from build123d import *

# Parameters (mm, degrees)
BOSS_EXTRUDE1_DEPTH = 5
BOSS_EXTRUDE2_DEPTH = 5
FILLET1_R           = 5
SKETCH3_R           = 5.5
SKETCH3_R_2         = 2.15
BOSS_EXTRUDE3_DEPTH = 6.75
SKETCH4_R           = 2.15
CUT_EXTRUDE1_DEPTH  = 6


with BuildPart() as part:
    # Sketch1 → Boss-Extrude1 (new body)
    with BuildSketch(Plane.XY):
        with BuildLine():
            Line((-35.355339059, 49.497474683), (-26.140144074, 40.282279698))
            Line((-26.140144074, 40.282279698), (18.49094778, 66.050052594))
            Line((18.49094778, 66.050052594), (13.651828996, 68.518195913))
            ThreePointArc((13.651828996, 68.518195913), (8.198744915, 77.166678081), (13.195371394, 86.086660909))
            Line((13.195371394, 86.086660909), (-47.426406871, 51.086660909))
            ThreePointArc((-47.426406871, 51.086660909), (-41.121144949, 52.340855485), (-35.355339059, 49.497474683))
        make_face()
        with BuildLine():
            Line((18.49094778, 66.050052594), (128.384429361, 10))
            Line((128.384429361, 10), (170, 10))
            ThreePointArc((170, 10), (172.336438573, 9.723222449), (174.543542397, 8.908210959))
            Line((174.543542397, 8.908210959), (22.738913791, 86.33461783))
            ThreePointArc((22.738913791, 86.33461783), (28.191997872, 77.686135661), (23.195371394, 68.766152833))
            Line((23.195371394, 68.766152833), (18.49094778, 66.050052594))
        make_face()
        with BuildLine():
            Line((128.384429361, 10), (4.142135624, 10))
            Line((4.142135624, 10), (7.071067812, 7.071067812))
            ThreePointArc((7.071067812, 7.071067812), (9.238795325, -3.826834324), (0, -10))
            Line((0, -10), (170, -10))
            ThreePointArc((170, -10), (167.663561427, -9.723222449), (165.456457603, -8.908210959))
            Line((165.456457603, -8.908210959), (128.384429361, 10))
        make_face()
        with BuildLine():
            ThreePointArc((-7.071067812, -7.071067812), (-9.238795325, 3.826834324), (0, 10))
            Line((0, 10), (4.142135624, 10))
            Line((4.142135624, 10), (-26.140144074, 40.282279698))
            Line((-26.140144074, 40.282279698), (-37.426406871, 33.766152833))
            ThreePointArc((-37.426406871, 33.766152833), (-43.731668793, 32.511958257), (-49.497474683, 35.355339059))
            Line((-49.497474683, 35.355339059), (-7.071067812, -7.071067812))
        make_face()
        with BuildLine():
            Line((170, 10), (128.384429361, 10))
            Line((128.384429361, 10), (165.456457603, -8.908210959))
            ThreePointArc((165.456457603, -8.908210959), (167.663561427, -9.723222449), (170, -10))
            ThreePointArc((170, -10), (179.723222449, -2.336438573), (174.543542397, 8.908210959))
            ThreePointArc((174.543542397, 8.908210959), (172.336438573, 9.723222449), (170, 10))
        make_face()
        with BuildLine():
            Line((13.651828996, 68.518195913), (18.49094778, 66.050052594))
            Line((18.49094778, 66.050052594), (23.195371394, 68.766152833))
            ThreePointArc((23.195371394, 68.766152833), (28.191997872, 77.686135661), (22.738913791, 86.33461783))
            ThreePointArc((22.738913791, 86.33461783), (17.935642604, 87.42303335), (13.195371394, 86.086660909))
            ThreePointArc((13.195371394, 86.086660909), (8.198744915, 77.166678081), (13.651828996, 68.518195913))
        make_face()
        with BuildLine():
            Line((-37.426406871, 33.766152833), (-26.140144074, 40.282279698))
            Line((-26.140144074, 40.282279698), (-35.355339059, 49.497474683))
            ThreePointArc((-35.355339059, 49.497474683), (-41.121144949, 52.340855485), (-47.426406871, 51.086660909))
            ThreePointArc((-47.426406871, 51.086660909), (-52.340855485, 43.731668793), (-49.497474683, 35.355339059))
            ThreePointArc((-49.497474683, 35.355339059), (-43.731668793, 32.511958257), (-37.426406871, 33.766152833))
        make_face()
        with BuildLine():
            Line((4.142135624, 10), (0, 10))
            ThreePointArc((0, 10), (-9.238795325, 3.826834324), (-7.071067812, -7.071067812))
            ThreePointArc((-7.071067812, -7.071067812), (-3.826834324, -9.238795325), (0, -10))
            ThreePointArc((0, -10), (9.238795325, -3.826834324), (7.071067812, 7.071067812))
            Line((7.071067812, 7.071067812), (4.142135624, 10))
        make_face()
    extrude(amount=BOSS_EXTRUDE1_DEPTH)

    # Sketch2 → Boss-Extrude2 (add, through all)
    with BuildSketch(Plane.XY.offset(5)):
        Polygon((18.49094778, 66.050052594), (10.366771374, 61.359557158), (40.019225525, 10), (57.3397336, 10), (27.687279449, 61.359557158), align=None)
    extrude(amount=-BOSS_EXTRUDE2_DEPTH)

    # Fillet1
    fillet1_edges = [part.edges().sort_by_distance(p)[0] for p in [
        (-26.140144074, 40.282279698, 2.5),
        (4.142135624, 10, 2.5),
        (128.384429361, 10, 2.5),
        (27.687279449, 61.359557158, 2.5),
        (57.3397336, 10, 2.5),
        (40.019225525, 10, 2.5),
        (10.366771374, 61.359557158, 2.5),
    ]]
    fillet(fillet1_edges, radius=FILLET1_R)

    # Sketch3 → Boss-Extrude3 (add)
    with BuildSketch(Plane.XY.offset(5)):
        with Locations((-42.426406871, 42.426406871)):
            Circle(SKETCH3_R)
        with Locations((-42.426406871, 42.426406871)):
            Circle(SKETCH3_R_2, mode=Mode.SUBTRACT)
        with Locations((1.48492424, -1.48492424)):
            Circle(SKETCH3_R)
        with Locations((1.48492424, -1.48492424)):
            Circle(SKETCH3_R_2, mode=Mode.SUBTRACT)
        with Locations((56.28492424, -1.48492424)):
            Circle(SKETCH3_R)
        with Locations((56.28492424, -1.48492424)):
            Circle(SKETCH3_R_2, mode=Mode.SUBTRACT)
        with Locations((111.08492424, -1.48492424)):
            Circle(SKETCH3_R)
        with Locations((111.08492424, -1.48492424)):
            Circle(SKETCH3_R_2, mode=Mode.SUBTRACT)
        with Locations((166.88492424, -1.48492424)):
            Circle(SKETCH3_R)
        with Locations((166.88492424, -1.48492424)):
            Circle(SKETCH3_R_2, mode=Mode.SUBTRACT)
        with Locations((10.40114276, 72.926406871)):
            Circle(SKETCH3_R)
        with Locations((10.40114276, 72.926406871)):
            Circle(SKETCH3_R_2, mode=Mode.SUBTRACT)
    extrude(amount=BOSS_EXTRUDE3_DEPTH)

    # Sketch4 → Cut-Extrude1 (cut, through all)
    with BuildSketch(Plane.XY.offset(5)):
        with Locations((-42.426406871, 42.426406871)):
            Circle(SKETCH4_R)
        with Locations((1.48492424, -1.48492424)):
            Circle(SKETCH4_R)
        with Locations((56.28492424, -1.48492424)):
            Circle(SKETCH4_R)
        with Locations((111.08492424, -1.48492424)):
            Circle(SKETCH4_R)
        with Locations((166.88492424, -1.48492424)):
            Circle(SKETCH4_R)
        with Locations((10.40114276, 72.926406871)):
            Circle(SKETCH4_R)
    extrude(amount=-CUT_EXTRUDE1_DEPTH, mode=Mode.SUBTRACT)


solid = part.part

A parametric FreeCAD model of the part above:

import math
import FreeCAD as App
import Part
import Sketcher
from FreeCAD import Vector
Q = App.Units.Quantity


def edges_at(feature, points):
    """Names of the edges that pass closest to the given points."""
    edges = feature.Shape.Edges
    near = lambda p: min(range(len(edges)), key=lambda i: edges[i].distToShape(Part.Vertex(*p))[0])
    return sorted({f"Edge{near(p) + 1}" for p in points})


def add_polygon(sketch, points):
    """Adds a closed chain of lines whose ends are joined by coincident constraints."""
    first, n = sketch.GeometryCount, len(points)
    for a, b in zip(points, points[1:] + points[:1]):
        sketch.addGeometry(Part.LineSegment(App.Vector(*a, 0), App.Vector(*b, 0)), False)
    for i in range(n):
        sketch.addConstraint(Sketcher.Constraint("Coincident", first + i, 2, first + (i + 1) % n, 1))

doc = App.newDocument("Part")
params = doc.addObject("Spreadsheet::Sheet", "Params")
for row, (alias, value) in enumerate([
    ("sketch1_radius", "10 mm"),
    ("sketch1_width", "170 mm"),
    ("sketch1_length", "60 mm"),
    ("sketch1_length2", "70 mm"),
    ("pad1_length", "5 mm"),
    ("pad2_length", "5 mm"),
    ("fillet_radius", "5 mm"),
    ("sketch3_diameter", "11 mm"),
    ("sketch3_diameter2", "4.3 mm"),
    ("pad3_length", "6.75 mm"),
    ("sketch4_diameter", "4.3 mm"),
], start=1):
    params.set(f"A{row}", alias)
    params.set(f"B{row}", "=" + value)
    params.setAlias(f"B{row}", alias)

body = doc.addObject("PartDesign::Body", "Body")

# Sketch on XY plane
sketch1 = body.newObject("Sketcher::SketchObject", "Sketch")
sketch1.AttachmentSupport = (doc.getObject("XY_Plane"), [""])
sketch1.MapMode = "FlatFace"
sketch1.addGeometry(Part.LineSegment(Vector(-49, 35, 0), Vector(-7, -7, 0)), False)  # 0
sketch1.addGeometry(Part.ArcOfCircle(Part.Circle(Vector(0, 0, 0), Vector(0, 0, 1), 10), math.radians(-135), math.radians(-90)), False)  # 1
sketch1.addGeometry(Part.LineSegment(Vector(0, -10, 0), Vector(170, -10, 0)), False)  # 2
sketch1.addGeometry(Part.ArcOfCircle(Part.Circle(Vector(170, 0, 0), Vector(0, 0, 1), 10), math.radians(-90), math.radians(63)), False)  # 3
sketch1.addGeometry(Part.LineSegment(Vector(175, 9, 0), Vector(23, 86, 0)), False)  # 4
sketch1.addGeometry(Part.ArcOfCircle(Part.Circle(Vector(18, 77, 0), Vector(0, 0, 1), 10), math.radians(63), math.radians(120)), False)  # 5
sketch1.addGeometry(Part.LineSegment(Vector(13, 86, 0), Vector(-47, 51, 0)), False)  # 6
sketch1.addGeometry(Part.ArcOfCircle(Part.Circle(Vector(-42, 42, 0), Vector(0, 0, 1), 10), math.radians(120), math.radians(225)), False)  # 7
add_polygon(sketch1, [(128, 10), (4, 10), (-26, 40), (18, 66)])  # lines 8-11
sketch1.addConstraint(Sketcher.Constraint("Tangent", 0, 2, 1, 1))
sketch1.addConstraint(Sketcher.Constraint("Tangent", 1, 2, 2, 1))
sketch1.addConstraint(Sketcher.Constraint("Tangent", 2, 2, 3, 1))
sketch1.addConstraint(Sketcher.Constraint("Tangent", 3, 2, 4, 1))
sketch1.addConstraint(Sketcher.Constraint("Tangent", 4, 2, 5, 1))
sketch1.addConstraint(Sketcher.Constraint("Tangent", 5, 2, 6, 1))
sketch1.addConstraint(Sketcher.Constraint("Tangent", 6, 2, 7, 1))
sketch1.addConstraint(Sketcher.Constraint("Tangent", 7, 2, 0, 1))
sketch1.addConstraint(Sketcher.Constraint("Horizontal", 2))
sketch1.addConstraint(Sketcher.Constraint("Horizontal", 8))
sketch1.addConstraint(Sketcher.Constraint("Coincident", 1, 3, -1, 1))
sketch1.addConstraint(Sketcher.Constraint("Equal", 1, 3))
sketch1.addConstraint(Sketcher.Constraint("Equal", 3, 5))
sketch1.addConstraint(Sketcher.Constraint("Equal", 5, 7))
sketch1.addConstraint(Sketcher.Constraint("Parallel", 0, 9))
sketch1.addConstraint(Sketcher.Constraint("Parallel", 6, 10))
sketch1.addConstraint(Sketcher.Constraint("Parallel", 4, 11))
sketch1.addConstraint(Sketcher.Constraint("Radius", 1, Q("10 mm")))
sketch1.addConstraint(Sketcher.Constraint("DistanceX", 2, 1, 2, 2, Q("170 mm")))
sketch1.addConstraint(Sketcher.Constraint("Angle", 0, Q("-45 deg")))
sketch1.addConstraint(Sketcher.Constraint("Angle", 6, Q("-150 deg")))
sketch1.addConstraint(Sketcher.Constraint("Distance", 0, Q("60 mm")))
sketch1.addConstraint(Sketcher.Constraint("Distance", 6, Q("70 mm")))
sketch1.addConstraint(Sketcher.Constraint("DistanceY", -1, 1, 8, 2, Q("10 mm")))
sketch1.addConstraint(Sketcher.Constraint("Distance", 9, Q("42.825611 mm")))
sketch1.addConstraint(Sketcher.Constraint("Distance", 11, Q("123.362011 mm")))
sketch1.addConstraint(Sketcher.Constraint("DistanceX", -1, 1, 11, 2, Q("128.384429 mm")))
sketch1.setExpression("Constraints[21]", "Params.sketch1_radius")
sketch1.setExpression("Constraints[22]", "Params.sketch1_width")
sketch1.setExpression("Constraints[25]", "Params.sketch1_length")
sketch1.setExpression("Constraints[26]", "Params.sketch1_length2")
pad1 = body.newObject("PartDesign::Pad", "Pad")
pad1.Profile = sketch1
pad1.setExpression("Length", "Params.pad1_length")

# Sketch on XY plane
sketch2 = body.newObject("Sketcher::SketchObject", "Sketch001")
sketch2.AttachmentSupport = (doc.getObject("XY_Plane"), [""])
sketch2.MapMode = "FlatFace"
sketch2.AttachmentOffset = App.Placement(Vector(0, 0, 5), App.Rotation())
add_polygon(sketch2, [(18, 66), (10, 61), (40, 10), (57, 10), (28, 61)])  # lines 0-4
sketch2.addConstraint(Sketcher.Constraint("Horizontal", 2))
sketch2.addConstraint(Sketcher.Constraint("Perpendicular", 0, 1))
sketch2.addConstraint(Sketcher.Constraint("Parallel", 1, 3))
sketch2.addConstraint(Sketcher.Constraint("Horizontal", 0, 2, 3, 2))
sketch2.addConstraint(Sketcher.Constraint("Angle", 0, Q("-150 deg")))
sketch2.addConstraint(Sketcher.Constraint("DistanceY", -1, 1, 1, 2, Q("10 mm")))
sketch2.addConstraint(Sketcher.Constraint("DistanceX", 2, 1, 2, 2, Q("17.320508 mm")))
sketch2.addConstraint(Sketcher.Constraint("Distance", 0, Q("9.380991 mm")))
sketch2.addConstraint(Sketcher.Constraint("Distance", 1, Q("59.304908 mm")))
sketch2.addConstraint(Sketcher.Constraint("DistanceX", -1, 1, 0, 2, Q("10.366771 mm")))
pad2 = body.newObject("PartDesign::Pad", "Pad001")
pad2.Profile = sketch2
pad2.setExpression("Length", "Params.pad2_length")
pad2.Reversed = True
doc.recompute()

fillet = body.newObject("PartDesign::Fillet", "Fillet")
fillet.Base = (pad2, edges_at(pad2, [
    (-26.14, 40.282, 2.5),
    (4.142, 10, 2.5),
    (128.384, 10, 2.5),
    (27.687, 61.36, 2.5),
    (57.34, 10, 2.5),
    (40.019, 10, 2.5),
    (10.367, 61.36, 2.5),
]))
fillet.setExpression("Radius", "Params.fillet_radius")

# Sketch on XY plane
sketch3 = body.newObject("Sketcher::SketchObject", "Sketch002")
sketch3.AttachmentSupport = (doc.getObject("XY_Plane"), [""])
sketch3.MapMode = "FlatFace"
sketch3.AttachmentOffset = App.Placement(Vector(0, 0, 5), App.Rotation())
sketch3.addGeometry(Part.Circle(Vector(-42.4, 42.4, 0), Vector(0, 0, 1), 5.5), False)
sketch3.addGeometry(Part.Circle(Vector(-42.4, 42.4, 0), Vector(0, 0, 1), 2.1), False)
sketch3.addGeometry(Part.Circle(Vector(1.5, -1.5, 0), Vector(0, 0, 1), 5.5), False)
sketch3.addGeometry(Part.Circle(Vector(1.5, -1.5, 0), Vector(0, 0, 1), 2.1), False)
sketch3.addGeometry(Part.Circle(Vector(56.3, -1.5, 0), Vector(0, 0, 1), 5.5), False)
sketch3.addGeometry(Part.Circle(Vector(56.3, -1.5, 0), Vector(0, 0, 1), 2.1), False)
sketch3.addGeometry(Part.Circle(Vector(111.1, -1.5, 0), Vector(0, 0, 1), 5.5), False)
sketch3.addGeometry(Part.Circle(Vector(111.1, -1.5, 0), Vector(0, 0, 1), 2.1), False)
sketch3.addGeometry(Part.Circle(Vector(166.9, -1.5, 0), Vector(0, 0, 1), 5.5), False)
sketch3.addGeometry(Part.Circle(Vector(166.9, -1.5, 0), Vector(0, 0, 1), 2.1), False)
sketch3.addGeometry(Part.Circle(Vector(10.4, 72.9, 0), Vector(0, 0, 1), 5.5), False)
sketch3.addGeometry(Part.Circle(Vector(10.4, 72.9, 0), Vector(0, 0, 1), 2.1), False)
sketch3.addConstraint(Sketcher.Constraint("Coincident", 1, 3, 0, 3))
sketch3.addConstraint(Sketcher.Constraint("Coincident", 3, 3, 2, 3))
sketch3.addConstraint(Sketcher.Constraint("Coincident", 5, 3, 4, 3))
sketch3.addConstraint(Sketcher.Constraint("Coincident", 7, 3, 6, 3))
sketch3.addConstraint(Sketcher.Constraint("Coincident", 9, 3, 8, 3))
sketch3.addConstraint(Sketcher.Constraint("Coincident", 11, 3, 10, 3))
sketch3.addConstraint(Sketcher.Constraint("Equal", 0, 2))
sketch3.addConstraint(Sketcher.Constraint("Equal", 1, 3))
sketch3.addConstraint(Sketcher.Constraint("Equal", 2, 4))
sketch3.addConstraint(Sketcher.Constraint("Equal", 3, 5))
sketch3.addConstraint(Sketcher.Constraint("Equal", 4, 6))
sketch3.addConstraint(Sketcher.Constraint("Equal", 5, 7))
sketch3.addConstraint(Sketcher.Constraint("Equal", 6, 8))
sketch3.addConstraint(Sketcher.Constraint("Equal", 7, 9))
sketch3.addConstraint(Sketcher.Constraint("Equal", 8, 10))
sketch3.addConstraint(Sketcher.Constraint("Equal", 9, 11))
sketch3.addConstraint(Sketcher.Constraint("Horizontal", 3, 3, 4, 3))
sketch3.addConstraint(Sketcher.Constraint("Horizontal", 5, 3, 6, 3))
sketch3.addConstraint(Sketcher.Constraint("Horizontal", 7, 3, 8, 3))
sketch3.addConstraint(Sketcher.Constraint("Diameter", 0, Q("11 mm")))
sketch3.addConstraint(Sketcher.Constraint("Diameter", 1, Q("4.3 mm")))
sketch3.addConstraint(Sketcher.Constraint("DistanceX", 2, 3, 4, 3, Q("54.8 mm")))
sketch3.addConstraint(Sketcher.Constraint("DistanceX", 4, 3, 6, 3, Q("54.8 mm")))
sketch3.addConstraint(Sketcher.Constraint("DistanceX", 6, 3, 8, 3, Q("55.8 mm")))
sketch3.addConstraint(Sketcher.Constraint("DistanceY", 0, 3, 10, 3, Q("30.5 mm")))
sketch3.addConstraint(Sketcher.Constraint("DistanceX", 0, 3, 2, 3, Q("43.911331 mm")))
sketch3.addConstraint(Sketcher.Constraint("DistanceY", 2, 3, 0, 3, Q("43.911331 mm")))
sketch3.addConstraint(Sketcher.Constraint("DistanceX", 0, 3, 10, 3, Q("52.82755 mm")))
sketch3.addConstraint(Sketcher.Constraint("DistanceX", 0, 3, -1, 1, Q("42.426407 mm")))
sketch3.addConstraint(Sketcher.Constraint("DistanceY", -1, 1, 0, 3, Q("42.426407 mm")))
sketch3.setExpression("Constraints[19]", "Params.sketch3_diameter")
sketch3.setExpression("Constraints[20]", "Params.sketch3_diameter2")
pad3 = body.newObject("PartDesign::Pad", "Pad002")
pad3.Profile = sketch3
pad3.setExpression("Length", "Params.pad3_length")

# Sketch on XY plane
sketch4 = body.newObject("Sketcher::SketchObject", "Sketch003")
sketch4.AttachmentSupport = (doc.getObject("XY_Plane"), [""])
sketch4.MapMode = "FlatFace"
sketch4.AttachmentOffset = App.Placement(Vector(0, 0, 5), App.Rotation())
sketch4.addGeometry(Part.Circle(Vector(-42.4, 42.4, 0), Vector(0, 0, 1), 2.1), False)
sketch4.addGeometry(Part.Circle(Vector(1.5, -1.5, 0), Vector(0, 0, 1), 2.1), False)
sketch4.addGeometry(Part.Circle(Vector(56.3, -1.5, 0), Vector(0, 0, 1), 2.1), False)
sketch4.addGeometry(Part.Circle(Vector(111.1, -1.5, 0), Vector(0, 0, 1), 2.1), False)
sketch4.addGeometry(Part.Circle(Vector(166.9, -1.5, 0), Vector(0, 0, 1), 2.1), False)
sketch4.addGeometry(Part.Circle(Vector(10.4, 72.9, 0), Vector(0, 0, 1), 2.1), False)
sketch4.addConstraint(Sketcher.Constraint("Equal", 0, 1))
sketch4.addConstraint(Sketcher.Constraint("Equal", 1, 2))
sketch4.addConstraint(Sketcher.Constraint("Equal", 2, 3))
sketch4.addConstraint(Sketcher.Constraint("Equal", 3, 4))
sketch4.addConstraint(Sketcher.Constraint("Equal", 4, 5))
sketch4.addConstraint(Sketcher.Constraint("Horizontal", 1, 3, 2, 3))
sketch4.addConstraint(Sketcher.Constraint("Horizontal", 2, 3, 3, 3))
sketch4.addConstraint(Sketcher.Constraint("Horizontal", 3, 3, 4, 3))
sketch4.addConstraint(Sketcher.Constraint("Diameter", 0, Q("4.3 mm")))
sketch4.addConstraint(Sketcher.Constraint("DistanceX", 1, 3, 2, 3, Q("54.8 mm")))
sketch4.addConstraint(Sketcher.Constraint("DistanceX", 2, 3, 3, 3, Q("54.8 mm")))
sketch4.addConstraint(Sketcher.Constraint("DistanceX", 3, 3, 4, 3, Q("55.8 mm")))
sketch4.addConstraint(Sketcher.Constraint("DistanceY", 0, 3, 5, 3, Q("30.5 mm")))
sketch4.addConstraint(Sketcher.Constraint("DistanceX", 0, 3, 1, 3, Q("43.911331 mm")))
sketch4.addConstraint(Sketcher.Constraint("DistanceY", 1, 3, 0, 3, Q("43.911331 mm")))
sketch4.addConstraint(Sketcher.Constraint("DistanceX", 0, 3, 5, 3, Q("52.82755 mm")))
sketch4.addConstraint(Sketcher.Constraint("DistanceX", 0, 3, -1, 1, Q("42.426407 mm")))
sketch4.addConstraint(Sketcher.Constraint("DistanceY", -1, 1, 0, 3, Q("42.426407 mm")))
sketch4.setExpression("Constraints[8]", "Params.sketch4_diameter")
pocket1 = body.newObject("PartDesign::Pocket", "Pocket")
pocket1.Profile = sketch4
pocket1.Type = "ThroughAll"

doc.recompute()
